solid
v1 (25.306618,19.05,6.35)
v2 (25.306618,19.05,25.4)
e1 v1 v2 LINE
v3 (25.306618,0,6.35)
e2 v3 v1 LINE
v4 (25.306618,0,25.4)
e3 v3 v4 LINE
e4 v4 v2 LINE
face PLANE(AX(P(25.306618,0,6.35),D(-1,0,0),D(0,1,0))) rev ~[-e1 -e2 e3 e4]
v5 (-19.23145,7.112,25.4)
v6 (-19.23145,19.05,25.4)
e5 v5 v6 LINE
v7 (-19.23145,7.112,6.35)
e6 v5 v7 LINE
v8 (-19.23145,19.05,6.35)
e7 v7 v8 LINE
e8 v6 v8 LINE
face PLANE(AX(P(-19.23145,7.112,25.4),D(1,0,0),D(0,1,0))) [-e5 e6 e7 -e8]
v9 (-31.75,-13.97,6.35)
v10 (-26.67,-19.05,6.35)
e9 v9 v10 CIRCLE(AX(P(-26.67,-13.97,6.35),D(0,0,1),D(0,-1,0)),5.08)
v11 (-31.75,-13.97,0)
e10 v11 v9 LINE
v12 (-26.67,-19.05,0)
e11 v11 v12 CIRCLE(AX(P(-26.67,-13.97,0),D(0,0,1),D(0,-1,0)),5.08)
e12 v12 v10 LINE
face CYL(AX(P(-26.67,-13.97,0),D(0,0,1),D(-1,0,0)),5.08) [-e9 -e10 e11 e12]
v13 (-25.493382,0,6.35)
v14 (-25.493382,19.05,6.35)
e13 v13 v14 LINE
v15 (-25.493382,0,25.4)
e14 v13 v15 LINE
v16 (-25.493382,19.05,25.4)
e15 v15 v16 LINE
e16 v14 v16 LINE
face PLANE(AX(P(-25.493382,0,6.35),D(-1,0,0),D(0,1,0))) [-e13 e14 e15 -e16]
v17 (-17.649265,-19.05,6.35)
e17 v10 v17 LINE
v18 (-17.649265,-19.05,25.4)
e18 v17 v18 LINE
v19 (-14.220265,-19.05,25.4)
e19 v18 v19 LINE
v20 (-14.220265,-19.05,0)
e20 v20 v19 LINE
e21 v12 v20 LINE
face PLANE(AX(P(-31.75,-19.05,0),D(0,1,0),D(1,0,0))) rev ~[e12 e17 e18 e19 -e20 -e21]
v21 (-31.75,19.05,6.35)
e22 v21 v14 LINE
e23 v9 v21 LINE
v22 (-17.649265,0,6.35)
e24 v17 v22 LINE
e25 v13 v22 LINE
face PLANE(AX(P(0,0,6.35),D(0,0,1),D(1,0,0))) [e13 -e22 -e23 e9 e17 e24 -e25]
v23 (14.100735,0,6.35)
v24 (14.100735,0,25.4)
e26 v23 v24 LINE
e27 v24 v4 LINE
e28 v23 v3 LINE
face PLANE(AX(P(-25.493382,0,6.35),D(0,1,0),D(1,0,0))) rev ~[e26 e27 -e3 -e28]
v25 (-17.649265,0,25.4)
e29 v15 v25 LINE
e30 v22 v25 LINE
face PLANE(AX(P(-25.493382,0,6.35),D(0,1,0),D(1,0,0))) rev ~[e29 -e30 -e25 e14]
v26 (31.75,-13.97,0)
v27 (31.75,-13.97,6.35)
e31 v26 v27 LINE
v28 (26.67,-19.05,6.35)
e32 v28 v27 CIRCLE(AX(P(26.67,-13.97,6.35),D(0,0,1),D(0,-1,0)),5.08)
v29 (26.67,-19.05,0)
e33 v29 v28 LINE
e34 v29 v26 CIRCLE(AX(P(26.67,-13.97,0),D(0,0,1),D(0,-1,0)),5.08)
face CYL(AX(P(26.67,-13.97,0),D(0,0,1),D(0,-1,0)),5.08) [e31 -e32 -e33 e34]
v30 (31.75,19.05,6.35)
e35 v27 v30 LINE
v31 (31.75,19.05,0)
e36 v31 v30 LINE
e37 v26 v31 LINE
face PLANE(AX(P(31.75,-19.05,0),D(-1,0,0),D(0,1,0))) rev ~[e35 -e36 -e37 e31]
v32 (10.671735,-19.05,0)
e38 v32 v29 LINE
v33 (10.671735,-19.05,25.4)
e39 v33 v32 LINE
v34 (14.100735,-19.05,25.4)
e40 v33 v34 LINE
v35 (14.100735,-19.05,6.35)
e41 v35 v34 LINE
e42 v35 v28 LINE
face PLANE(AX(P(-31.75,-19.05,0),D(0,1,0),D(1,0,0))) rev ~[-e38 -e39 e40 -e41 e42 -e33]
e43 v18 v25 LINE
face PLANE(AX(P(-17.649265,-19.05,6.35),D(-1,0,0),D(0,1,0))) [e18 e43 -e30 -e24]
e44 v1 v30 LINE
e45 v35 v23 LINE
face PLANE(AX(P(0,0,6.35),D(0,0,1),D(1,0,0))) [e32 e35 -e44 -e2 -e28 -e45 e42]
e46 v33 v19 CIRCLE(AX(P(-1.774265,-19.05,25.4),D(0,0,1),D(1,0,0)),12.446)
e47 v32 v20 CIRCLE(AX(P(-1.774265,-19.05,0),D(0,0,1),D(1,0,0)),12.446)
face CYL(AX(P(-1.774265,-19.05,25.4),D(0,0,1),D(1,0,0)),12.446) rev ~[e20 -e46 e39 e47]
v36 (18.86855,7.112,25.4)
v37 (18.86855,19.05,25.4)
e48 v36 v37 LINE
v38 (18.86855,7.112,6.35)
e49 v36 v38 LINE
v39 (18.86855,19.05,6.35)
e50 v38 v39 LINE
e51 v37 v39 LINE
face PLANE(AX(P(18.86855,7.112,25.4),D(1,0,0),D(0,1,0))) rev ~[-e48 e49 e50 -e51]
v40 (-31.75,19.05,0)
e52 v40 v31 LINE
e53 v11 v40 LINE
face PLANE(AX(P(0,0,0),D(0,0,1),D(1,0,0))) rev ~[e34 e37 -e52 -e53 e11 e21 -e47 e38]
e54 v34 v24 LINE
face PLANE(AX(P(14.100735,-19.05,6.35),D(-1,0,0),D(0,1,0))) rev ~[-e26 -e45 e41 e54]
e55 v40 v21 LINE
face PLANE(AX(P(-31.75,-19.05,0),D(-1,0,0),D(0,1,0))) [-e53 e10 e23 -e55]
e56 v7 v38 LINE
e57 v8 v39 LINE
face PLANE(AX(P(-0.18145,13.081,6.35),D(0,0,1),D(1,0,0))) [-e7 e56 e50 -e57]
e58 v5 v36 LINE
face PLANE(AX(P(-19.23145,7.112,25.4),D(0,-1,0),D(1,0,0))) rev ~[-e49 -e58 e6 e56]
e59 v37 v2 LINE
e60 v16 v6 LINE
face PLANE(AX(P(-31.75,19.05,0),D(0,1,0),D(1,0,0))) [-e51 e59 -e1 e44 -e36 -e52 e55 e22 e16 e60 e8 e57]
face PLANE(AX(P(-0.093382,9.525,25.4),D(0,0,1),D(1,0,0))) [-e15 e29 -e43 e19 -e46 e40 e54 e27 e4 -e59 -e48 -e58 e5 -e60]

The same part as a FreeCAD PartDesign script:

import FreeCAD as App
import Part
import Sketcher
Q = App.Units.Quantity


def edges_at(feature, points):
    """Names of the edges that pass closest to the given points."""
    edges = feature.Shape.Edges
    near = lambda p: min(range(len(edges)), key=lambda i: edges[i].distToShape(Part.Vertex(*p))[0])
    return sorted({f"Edge{near(p) + 1}" for p in points})

doc = App.newDocument("Part")
body = doc.addObject("PartDesign::Body", "Body")

# Sketch on XY plane
sketch1 = body.newObject("Sketcher::SketchObject", "Sketch")
sketch1.AttachmentSupport = (doc.getObject("XY_Plane"), [""])
sketch1.MapMode = "FlatFace"
sketch1.addGeometry([
    Part.LineSegment(App.Vector(-32, 19, 0), App.Vector(-32, -19, 0)),
    Part.LineSegment(App.Vector(-32, -19, 0), App.Vector(32, -19, 0)),
    Part.LineSegment(App.Vector(32, -19, 0), App.Vector(32, 19, 0)),
    Part.LineSegment(App.Vector(32, 19, 0), App.Vector(-32, 19, 0)),
], False)
sketch1.addConstraint([
    Sketcher.Constraint("Coincident", 0, 2, 1, 1),
    Sketcher.Constraint("Coincident", 1, 2, 2, 1),
    Sketcher.Constraint("Coincident", 2, 2, 3, 1),
    Sketcher.Constraint("Coincident", 3, 2, 0, 1),
    Sketcher.Constraint("Vertical", 0),
    Sketcher.Constraint("Horizontal", 1),
    Sketcher.Constraint("Vertical", 2),
    Sketcher.Constraint("Horizontal", 3),
    Sketcher.Constraint("Symmetric", 0, 2, 2, 2, -1, 1),
    Sketcher.Constraint("DistanceX", 1, 1, 1, 2, Q("2.5 in")),
    Sketcher.Constraint("DistanceY", 0, 2, 0, 1, Q("1.5 in")),
])
pad1 = body.newObject("PartDesign::Pad", "Pad")
pad1.Profile = sketch1
pad1.Length = Q("0.25 in")

# Sketch on XY plane
sketch2 = body.newObject("Sketcher::SketchObject", "Sketch001")
sketch2.AttachmentSupport = (doc.getObject("XY_Plane"), [""])
sketch2.MapMode = "FlatFace"
sketch2.AttachmentOffset = App.Placement(App.Vector(0, 0, 0.25 * 25.4), App.Rotation())
sketch2.addGeometry([
    Part.LineSegment(App.Vector(-25, 19, 0), App.Vector(-25, 0, 0)),
    Part.LineSegment(App.Vector(-25, 0, 0), App.Vector(25, 0, 0)),
    Part.LineSegment(App.Vector(25, 0, 0), App.Vector(25, 19, 0)),
    Part.LineSegment(App.Vector(25, 19, 0), App.Vector(-25, 19, 0)),
], False)
sketch2.addConstraint([
    Sketcher.Constraint("Coincident", 0, 2, 1, 1),
    Sketcher.Constraint("Coincident", 1, 2, 2, 1),
    Sketcher.Constraint("Coincident", 2, 2, 3, 1),
    Sketcher.Constraint("Coincident", 3, 2, 0, 1),
    Sketcher.Constraint("Vertical", 0),
    Sketcher.Constraint("Horizontal", 1),
    Sketcher.Constraint("Vertical", 2),
    Sketcher.Constraint("Horizontal", 3),
    Sketcher.Constraint("PointOnObject", 0, 2, -1),
    Sketcher.Constraint("DistanceX", 1, 1, 1, 2, Q("2 in")),
    Sketcher.Constraint("DistanceY", 0, 2, 0, 1, Q("0.75 in")),
    Sketcher.Constraint("DistanceX", -1, 1, 1, 2, 25.306618),
])
pad2 = body.newObject("PartDesign::Pad", "Pad001")
pad2.Profile = sketch2
pad2.Length = Q("0.75 in")

# Sketch on XY plane
sketch3 = body.newObject("Sketcher::SketchObject", "Sketch002")
sketch3.AttachmentSupport = (doc.getObject("XY_Plane"), [""])
sketch3.MapMode = "FlatFace"
sketch3.AttachmentOffset = App.Placement(App.Vector(0, 0, 1 * 25.4), App.Rotation())
sketch3.addGeometry([
    Part.LineSegment(App.Vector(-19, 19, 0), App.Vector(-19, 7, 0)),
    Part.LineSegment(App.Vector(-19, 7, 0), App.Vector(19, 7, 0)),
    Part.LineSegment(App.Vector(19, 7, 0), App.Vector(19, 19, 0)),
    Part.LineSegment(App.Vector(19, 19, 0), App.Vector(-19, 19, 0)),
], False)
sketch3.addConstraint([
    Sketcher.Constraint("Coincident", 0, 2, 1, 1),
    Sketcher.Constraint("Coincident", 1, 2, 2, 1),
    Sketcher.Constraint("Coincident", 2, 2, 3, 1),
    Sketcher.Constraint("Coincident", 3, 2, 0, 1),
    Sketcher.Constraint("Vertical", 0),
    Sketcher.Constraint("Horizontal", 1),
    Sketcher.Constraint("Vertical", 2),
    Sketcher.Constraint("Horizontal", 3),
    Sketcher.Constraint("DistanceX", 1, 1, 1, 2, Q("1.5 in")),
    Sketcher.Constraint("DistanceY", 0, 2, 0, 1, Q("0.47 in")),
    Sketcher.Constraint("DistanceY", -1, 1, 0, 2, Q("0.28 in")),
    Sketcher.Constraint("DistanceX", 0, 2, -1, 1, 19.23145),
])
pocket1 = body.newObject("PartDesign::Pocket", "Pocket")
pocket1.Profile = sketch3
pocket1.Length = Q("0.75 in")
doc.recompute()

fillet = body.newObject("PartDesign::Fillet", "Fillet")
fillet.Base = (pocket1, edges_at(pocket1, [(-31.75, -19.05, 3.175), (31.75, -19.05, 3.175)]))
fillet.Radius = Q("0.2 in")

# Sketch on XY plane
sketch4 = body.newObject("Sketcher::SketchObject", "Sketch003")
sketch4.AttachmentSupport = (doc.getObject("XY_Plane"), [""])
sketch4.MapMode = "FlatFace"
sketch4.AttachmentOffset = App.Placement(App.Vector(0, 0, 0.25 * 25.4), App.Rotation())
sketch4.addGeometry([
    Part.LineSegment(App.Vector(-18, 0, 0), App.Vector(-18, -19, 0)),
    Part.LineSegment(App.Vector(-18, -19, 0), App.Vector(14, -19, 0)),
    Part.LineSegment(App.Vector(14, -19, 0), App.Vector(14, 0, 0)),
    Part.LineSegment(App.Vector(14, 0, 0), App.Vector(-18, 0, 0)),
], False)
sketch4.addConstraint([
    Sketcher.Constraint("Coincident", 0, 2, 1, 1),
    Sketcher.Constraint("Coincident", 1, 2, 2, 1),
    Sketcher.Constraint("Coincident", 2, 2, 3, 1),
    Sketcher.Constraint("Coincident", 3, 2, 0, 1),
    Sketcher.Constraint("Vertical", 0),
    Sketcher.Constraint("Horizontal", 1),
    Sketcher.Constraint("Vertical", 2),
    Sketcher.Constraint("Horizontal", 3),
    Sketcher.Constraint("PointOnObject", 2, 2, -1),
    Sketcher.Constraint("DistanceX", 1, 1, 1, 2, Q("1.25 in")),
    Sketcher.Constraint("DistanceY", 0, 2, 0, 1, Q("0.75 in")),
    Sketcher.Constraint("DistanceX", 0, 2, -1, 1, 17.649265),
])
pad3 = body.newObject("PartDesign::Pad", "Pad002")
pad3.Profile = sketch4
pad3.Length = Q("0.75 in")

# Sketch on XY plane
sketch5 = body.newObject("Sketcher::SketchObject", "Sketch004")
sketch5.AttachmentSupport = (doc.getObject("XY_Plane"), [""])
sketch5.MapMode = "FlatFace"
sketch5.AttachmentOffset = App.Placement(App.Vector(0, 0, 1 * 25.4), App.Rotation())
sketch5.addGeometry(Part.Circle(App.Vector(-2, -19, 0), App.Vector(0, 0, 1), 12), False)
sketch5.addConstraint([
    Sketcher.Constraint("Diameter", 0, Q("0.98 in")),
    Sketcher.Constraint("DistanceY", 0, 3, -1, 1, Q("0.75 in")),
    Sketcher.Constraint("DistanceX", 0, 3, -1, 1, 1.774265),
])
pocket2 = body.newObject("PartDesign::Pocket", "Pocket001")
pocket2.Profile = sketch5
pocket2.Type = "ThroughAll"

doc.recompute()
